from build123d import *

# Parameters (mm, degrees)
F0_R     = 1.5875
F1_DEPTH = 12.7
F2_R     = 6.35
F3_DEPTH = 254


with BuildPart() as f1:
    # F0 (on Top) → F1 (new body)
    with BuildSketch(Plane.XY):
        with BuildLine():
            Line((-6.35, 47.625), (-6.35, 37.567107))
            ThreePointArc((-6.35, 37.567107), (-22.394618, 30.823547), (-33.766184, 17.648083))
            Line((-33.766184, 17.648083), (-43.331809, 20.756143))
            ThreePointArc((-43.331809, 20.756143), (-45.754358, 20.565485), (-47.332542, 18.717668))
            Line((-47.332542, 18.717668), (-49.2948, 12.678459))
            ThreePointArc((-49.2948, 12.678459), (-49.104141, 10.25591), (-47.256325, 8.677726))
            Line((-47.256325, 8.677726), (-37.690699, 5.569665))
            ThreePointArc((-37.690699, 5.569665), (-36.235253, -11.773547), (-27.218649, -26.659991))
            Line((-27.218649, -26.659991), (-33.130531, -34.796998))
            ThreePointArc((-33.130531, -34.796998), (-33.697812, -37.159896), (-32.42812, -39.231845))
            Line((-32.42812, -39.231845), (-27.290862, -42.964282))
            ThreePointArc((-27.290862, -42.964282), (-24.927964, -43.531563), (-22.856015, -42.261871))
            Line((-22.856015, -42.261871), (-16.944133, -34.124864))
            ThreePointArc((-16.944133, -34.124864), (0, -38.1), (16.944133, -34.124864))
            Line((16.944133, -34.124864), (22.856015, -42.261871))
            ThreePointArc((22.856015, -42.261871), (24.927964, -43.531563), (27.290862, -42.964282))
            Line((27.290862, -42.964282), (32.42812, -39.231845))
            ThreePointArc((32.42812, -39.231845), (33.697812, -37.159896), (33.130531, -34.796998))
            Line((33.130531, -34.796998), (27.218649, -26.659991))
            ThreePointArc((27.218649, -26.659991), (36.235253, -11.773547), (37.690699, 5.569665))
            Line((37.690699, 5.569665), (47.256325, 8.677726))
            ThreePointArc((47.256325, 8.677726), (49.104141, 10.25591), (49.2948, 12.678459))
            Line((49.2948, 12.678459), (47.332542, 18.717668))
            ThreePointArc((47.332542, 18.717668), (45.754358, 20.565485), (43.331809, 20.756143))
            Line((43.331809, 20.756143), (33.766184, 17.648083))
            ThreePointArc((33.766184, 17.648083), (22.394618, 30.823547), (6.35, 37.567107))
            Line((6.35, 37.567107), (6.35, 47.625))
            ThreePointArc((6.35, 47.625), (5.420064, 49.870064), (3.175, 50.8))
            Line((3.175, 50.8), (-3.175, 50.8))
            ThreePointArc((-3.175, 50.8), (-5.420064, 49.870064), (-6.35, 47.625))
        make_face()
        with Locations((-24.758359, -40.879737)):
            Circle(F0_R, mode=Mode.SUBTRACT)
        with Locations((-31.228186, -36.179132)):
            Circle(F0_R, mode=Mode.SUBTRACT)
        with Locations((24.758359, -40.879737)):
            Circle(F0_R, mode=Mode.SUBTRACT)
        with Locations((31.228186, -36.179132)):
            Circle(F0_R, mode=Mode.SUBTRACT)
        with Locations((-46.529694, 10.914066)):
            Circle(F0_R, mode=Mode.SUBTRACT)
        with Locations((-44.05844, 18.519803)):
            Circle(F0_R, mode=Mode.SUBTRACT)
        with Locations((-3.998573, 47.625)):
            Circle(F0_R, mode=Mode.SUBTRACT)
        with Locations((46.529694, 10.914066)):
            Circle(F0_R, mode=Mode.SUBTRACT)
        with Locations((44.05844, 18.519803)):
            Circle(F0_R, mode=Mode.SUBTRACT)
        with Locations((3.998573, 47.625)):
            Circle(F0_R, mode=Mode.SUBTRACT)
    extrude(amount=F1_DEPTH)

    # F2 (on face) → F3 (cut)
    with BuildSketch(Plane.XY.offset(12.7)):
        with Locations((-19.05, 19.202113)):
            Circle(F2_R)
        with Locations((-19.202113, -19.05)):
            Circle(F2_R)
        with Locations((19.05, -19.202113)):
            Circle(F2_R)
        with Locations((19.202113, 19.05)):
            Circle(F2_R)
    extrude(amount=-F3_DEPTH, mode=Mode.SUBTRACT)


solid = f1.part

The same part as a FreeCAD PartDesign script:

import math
import FreeCAD as App
import Part
import Sketcher

V = App.Vector
Q = App.Units.Quantity

doc = App.newDocument("Part")
params = doc.addObject("Spreadsheet::Sheet", "Params")
for row, (alias, value) in enumerate([
    ("sketch1_radius", "1.5 in"),
    ("sketch1_diameter", "0.125 in"),
    ("sketch1_radius2", "0.1249999 in"),
    ("sketch1_radius3", "0.125 in"),
    ("sketch1_width", "0.25 in"),
    ("pad1_length", "0.5 in"),
    ("sketch2_diameter", "0.5 in"),
    ("pocket1_length", "10 in"),
], start=1):
    params.set(f"A{row}", alias)
    params.set(f"B{row}", "=" + value)
    params.setAlias(f"B{row}", alias)

body = doc.addObject("PartDesign::Body", "Body")

sketch1 = body.newObject("Sketcher::SketchObject", "Sketch")
sketch1.AttachmentSupport = (doc.getObject("XY_Plane"), [""])
sketch1.MapMode = "FlatFace"
sketch1.addGeometry(Part.LineSegment(V(-6.3, 47.6, 0), V(-6.3, 37.6, 0)), False)
sketch1.addGeometry(Part.ArcOfCircle(Part.Circle(V(0, 0, 0), V(0, 0, 1), 38.1), math.radians(100), math.radians(152)), False)
sketch1.addGeometry(Part.LineSegment(V(-33.8, 17.6, 0), V(-43.3, 20.8, 0)), False)
sketch1.addGeometry(Part.ArcOfCircle(Part.Circle(V(-44.3, 17.7, 0), V(0, 0, 1), 3.2), math.radians(72), math.radians(162)), False)
sketch1.addGeometry(Part.LineSegment(V(-47.3, 18.7, 0), V(-49.3, 12.7, 0)), False)
sketch1.addGeometry(Part.ArcOfCircle(Part.Circle(V(-46.3, 11.7, 0), V(0, 0, 1), 3.2), math.radians(162), math.radians(252)), False)
sketch1.addGeometry(Part.LineSegment(V(-47.3, 8.7, 0), V(-37.7, 5.6, 0)), False)
sketch1.addGeometry(Part.ArcOfCircle(Part.Circle(V(0, 0, 0), V(0, 0, 1), 38.1), math.radians(172), math.radians(224)), False)
sketch1.addGeometry(Part.LineSegment(V(-27.2, -26.7, 0), V(-33.1, -34.8, 0)), False)
sketch1.addGeometry(Part.ArcOfCircle(Part.Circle(V(-30.6, -36.7, 0), V(0, 0, 1), 3.2), math.radians(144), math.radians(234)), False)
sketch1.addGeometry(Part.LineSegment(V(-32.4, -39.2, 0), V(-27.3, -43, 0)), False)
sketch1.addGeometry(Part.ArcOfCircle(Part.Circle(V(-25.4, -40.4, 0), V(0, 0, 1), 3.2), math.radians(-126), math.radians(-36)), False)
sketch1.addGeometry(Part.LineSegment(V(-22.9, -42.3, 0), V(-16.9, -34.1, 0)), False)
sketch1.addGeometry(Part.ArcOfCircle(Part.Circle(V(0, 0, 0), V(0, 0, 1), 38.1), math.radians(-116), math.radians(-64)), False)
sketch1.addGeometry(Part.LineSegment(V(16.9, -34.1, 0), V(22.9, -42.3, 0)), False)
sketch1.addGeometry(Part.ArcOfCircle(Part.Circle(V(25.4, -40.4, 0), V(0, 0, 1), 3.2), math.radians(-144), math.radians(-54)), False)
sketch1.addGeometry(Part.LineSegment(V(27.3, -43, 0), V(32.4, -39.2, 0)), False)
sketch1.addGeometry(Part.ArcOfCircle(Part.Circle(V(30.6, -36.7, 0), V(0, 0, 1), 3.2), math.radians(-54), math.radians(36)), False)
sketch1.addGeometry(Part.LineSegment(V(33.1, -34.8, 0), V(27.2, -26.7, 0)), False)
sketch1.addGeometry(Part.ArcOfCircle(Part.Circle(V(0, 0, 0), V(0, 0, 1), 38.1), math.radians(-44), math.radians(8)), False)
sketch1.addGeometry(Part.LineSegment(V(37.7, 5.6, 0), V(47.3, 8.7, 0)), False)
sketch1.addGeometry(Part.ArcOfCircle(Part.Circle(V(46.3, 11.7, 0), V(0, 0, 1), 3.2), math.radians(-72), math.radians(18)), False)
sketch1.addGeometry(Part.LineSegment(V(49.3, 12.7, 0), V(47.3, 18.7, 0)), False)
sketch1.addGeometry(Part.ArcOfCircle(Part.Circle(V(44.3, 17.7, 0), V(0, 0, 1), 3.2), math.radians(18), math.radians(108)), False)
sketch1.addGeometry(Part.LineSegment(V(43.3, 20.8, 0), V(33.8, 17.6, 0)), False)
sketch1.addGeometry(Part.ArcOfCircle(Part.Circle(V(0, 0, 0), V(0, 0, 1), 38.1), math.radians(28), math.radians(80)), False)
sketch1.addGeometry(Part.LineSegment(V(6.3, 37.6, 0), V(6.3, 47.6, 0)), False)
sketch1.addGeometry(Part.ArcOfCircle(Part.Circle(V(3.2, 47.6, 0), V(0, 0, 1), 3.2), math.radians(0), math.radians(90)), False)
sketch1.addGeometry(Part.LineSegment(V(3.2, 50.8, 0), V(-3.2, 50.8, 0)), False)
sketch1.addGeometry(Part.ArcOfCircle(Part.Circle(V(-3.2, 47.6, 0), V(0, 0, 1), 3.2), math.radians(90), math.radians(180)), False)
sketch1.addGeometry(Part.Circle(V(-24.8, -40.9, 0), V(0, 0, 1), 1.6), False)
sketch1.addGeometry(Part.Circle(V(-31.2, -36.2, 0), V(0, 0, 1), 1.6), False)
sketch1.addGeometry(Part.Circle(V(24.8, -40.9, 0), V(0, 0, 1), 1.6), False)
sketch1.addGeometry(Part.Circle(V(31.2, -36.2, 0), V(0, 0, 1), 1.6), False)
sketch1.addGeometry(Part.Circle(V(-46.5, 10.9, 0), V(0, 0, 1), 1.6), False)
sketch1.addGeometry(Part.Circle(V(-44.1, 18.5, 0), V(0, 0, 1), 1.6), False)
sketch1.addGeometry(Part.Circle(V(-4, 47.6, 0), V(0, 0, 1), 1.6), False)
sketch1.addGeometry(Part.Circle(V(46.5, 10.9, 0), V(0, 0, 1), 1.6), False)
sketch1.addGeometry(Part.Circle(V(44.1, 18.5, 0), V(0, 0, 1), 1.6), False)
sketch1.addGeometry(Part.Circle(V(4, 47.6, 0), V(0, 0, 1), 1.6), False)
sketch1.addConstraint(Sketcher.Constraint("Coincident", 0, 2, 1, 1))
sketch1.addConstraint(Sketcher.Constraint("Coincident", 1, 2, 2, 1))
sketch1.addConstraint(Sketcher.Constraint("Tangent", 2, 2, 3, 1))
sketch1.addConstraint(Sketcher.Constraint("Tangent", 3, 2, 4, 1))
sketch1.addConstraint(Sketcher.Constraint("Tangent", 4, 2, 5, 1))
sketch1.addConstraint(Sketcher.Constraint("Tangent", 5, 2, 6, 1))
sketch1.addConstraint(Sketcher.Constraint("Coincident", 6, 2, 7, 1))
sketch1.addConstraint(Sketcher.Constraint("Coincident", 7, 2, 8, 1))
sketch1.addConstraint(Sketcher.Constraint("Tangent", 8, 2, 9, 1))
sketch1.addConstraint(Sketcher.Constraint("Tangent", 9, 2, 10, 1))
sketch1.addConstraint(Sketcher.Constraint("Tangent", 10, 2, 11, 1))
sketch1.addConstraint(Sketcher.Constraint("Tangent", 11, 2, 12, 1))
sketch1.addConstraint(Sketcher.Constraint("Coincident", 12, 2, 13, 1))
sketch1.addConstraint(Sketcher.Constraint("Coincident", 13, 2, 14, 1))
sketch1.addConstraint(Sketcher.Constraint("Tangent", 14, 2, 15, 1))
sketch1.addConstraint(Sketcher.Constraint("Tangent", 15, 2, 16, 1))
sketch1.addConstraint(Sketcher.Constraint("Tangent", 16, 2, 17, 1))
sketch1.addConstraint(Sketcher.Constraint("Tangent", 17, 2, 18, 1))
sketch1.addConstraint(Sketcher.Constraint("Coincident", 18, 2, 19, 1))
sketch1.addConstraint(Sketcher.Constraint("Coincident", 19, 2, 20, 1))
sketch1.addConstraint(Sketcher.Constraint("Tangent", 20, 2, 21, 1))
sketch1.addConstraint(Sketcher.Constraint("Tangent", 21, 2, 22, 1))
sketch1.addConstraint(Sketcher.Constraint("Tangent", 22, 2, 23, 1))
sketch1.addConstraint(Sketcher.Constraint("Tangent", 23, 2, 24, 1))
sketch1.addConstraint(Sketcher.Constraint("Coincident", 24, 2, 25, 1))
sketch1.addConstraint(Sketcher.Constraint("Coincident", 25, 2, 26, 1))
sketch1.addConstraint(Sketcher.Constraint("Tangent", 26, 2, 27, 1))
sketch1.addConstraint(Sketcher.Constraint("Tangent", 27, 2, 28, 1))
sketch1.addConstraint(Sketcher.Constraint("Tangent", 28, 2, 29, 1))
sketch1.addConstraint(Sketcher.Constraint("Tangent", 29, 2, 0, 1))
sketch1.addConstraint(Sketcher.Constraint("Vertical", 0))
sketch1.addConstraint(Sketcher.Constraint("Vertical", 26))
sketch1.addConstraint(Sketcher.Constraint("Horizontal", 28))
sketch1.addConstraint(Sketcher.Constraint("Coincident", 1, 3, -1, 1))
sketch1.addConstraint(Sketcher.Constraint("Coincident", 7, 3, -1, 1))
sketch1.addConstraint(Sketcher.Constraint("Coincident", 13, 3, -1, 1))
sketch1.addConstraint(Sketcher.Constraint("Coincident", 19, 3, -1, 1))
sketch1.addConstraint(Sketcher.Constraint("Coincident", 25, 3, -1, 1))
sketch1.addConstraint(Sketcher.Constraint("Equal", 5, 9))
sketch1.addConstraint(Sketcher.Constraint("Equal", 9, 11))
sketch1.addConstraint(Sketcher.Constraint("Equal", 7, 13))
sketch1.addConstraint(Sketcher.Constraint("Equal", 11, 15))
sketch1.addConstraint(Sketcher.Constraint("Equal", 15, 17))
sketch1.addConstraint(Sketcher.Constraint("Equal", 13, 19))
sketch1.addConstraint(Sketcher.Constraint("Equal", 17, 21))
sketch1.addConstraint(Sketcher.Constraint("Equal", 3, 23))
sketch1.addConstraint(Sketcher.Constraint("Equal", 1, 25))
sketch1.addConstraint(Sketcher.Constraint("Equal", 21, 27))
sketch1.addConstraint(Sketcher.Constraint("Equal", 27, 29))
sketch1.addConstraint(Sketcher.Constraint("Equal", 30, 31))
sketch1.addConstraint(Sketcher.Constraint("Equal", 31, 32))
sketch1.addConstraint(Sketcher.Constraint("Equal", 32, 33))
sketch1.addConstraint(Sketcher.Constraint("Equal", 33, 34))
sketch1.addConstraint(Sketcher.Constraint("Equal", 34, 35))
sketch1.addConstraint(Sketcher.Constraint("Equal", 35, 36))
sketch1.addConstraint(Sketcher.Constraint("Equal", 36, 37))
sketch1.addConstraint(Sketcher.Constraint("Equal", 37, 38))
sketch1.addConstraint(Sketcher.Constraint("Equal", 38, 39))
sketch1.addConstraint(Sketcher.Constraint("Symmetric", 11, 3, 15, 3, -2))
sketch1.addConstraint(Sketcher.Constraint("Symmetric", 9, 3, 17, 3, -2))
sketch1.addConstraint(Sketcher.Constraint("Symmetric", 5, 3, 21, 3, -2))
sketch1.addConstraint(Sketcher.Constraint("Symmetric", 3, 3, 23, 3, -2))
sketch1.addConstraint(Sketcher.Constraint("Symmetric", 30, 3, 32, 3, -2))
sketch1.addConstraint(Sketcher.Constraint("Symmetric", 31, 3, 33, 3, -2))
sketch1.addConstraint(Sketcher.Constraint("Symmetric", 34, 3, 37, 3, -2))
sketch1.addConstraint(Sketcher.Constraint("Symmetric", 35, 3, 38, 3, -2))
sketch1.addConstraint(Sketcher.Constraint("Symmetric", 36, 3, 39, 3, -2))
sketch1.addConstraint(Sketcher.Constraint("Perpendicular", 2, 4))
sketch1.addConstraint(Sketcher.Constraint("Perpendicular", 4, 6))
sketch1.addConstraint(Sketcher.Constraint("Perpendicular", 8, 10))
sketch1.addConstraint(Sketcher.Constraint("Perpendicular", 10, 12))
sketch1.addConstraint(Sketcher.Constraint("Perpendicular", 14, 16))
sketch1.addConstraint(Sketcher.Constraint("Perpendicular", 16, 18))
sketch1.addConstraint(Sketcher.Constraint("Perpendicular", 20, 22))
sketch1.addConstraint(Sketcher.Constraint("Perpendicular", 22, 24))
sketch1.addConstraint(Sketcher.Constraint("Horizontal", 29, 3, 36, 3))
sketch1.addConstraint(Sketcher.Constraint("Horizontal", 0, 2, 25, 2))
sketch1.addConstraint(Sketcher.Constraint("Equal", 2, 6))
sketch1.addConstraint(Sketcher.Constraint("Equal", 6, 8))
sketch1.addConstraint(Sketcher.Constraint("Equal", 4, 10))
sketch1.addConstraint(Sketcher.Constraint("Equal", 8, 12))
sketch1.addConstraint(Sketcher.Constraint("Radius", 7, Q("1.5 in")))
sketch1.addConstraint(Sketcher.Constraint("Diameter", 30, Q("0.125 in")))
sketch1.addConstraint(Sketcher.Constraint("DistanceY", -1, 1, 27, 2, Q("2 in")))
sketch1.addConstraint(Sketcher.Constraint("Angle", 2, Q("162 deg")))
sketch1.addConstraint(Sketcher.Constraint("Angle", 8, Q("-126.000002 deg")))
sketch1.addConstraint(Sketcher.Constraint("Radius", 3, Q("0.1249999 in")))
sketch1.addConstraint(Sketcher.Constraint("Radius", 5, Q("0.125 in")))
sketch1.addConstraint(Sketcher.Constraint("DistanceX", 28, 2, 28, 1, Q("0.25 in")))
sketch1.addConstraint(Sketcher.Constraint("Distance", 4, Q("0.25 in")))
sketch1.addConstraint(Sketcher.Constraint("Radius", 1, 38.100007))
sketch1.addConstraint(Sketcher.Constraint("DistanceX", 9, 3, -1, 1, 30.561901))
sketch1.addConstraint(Sketcher.Constraint("DistanceX", 34, 3, 5, 3, 0.254498))
sketch1.addConstraint(Sketcher.Constraint("DistanceX", 3, 3, 35, 3, 0.254499))
sketch1.addConstraint(Sketcher.Constraint("DistanceY", 34, 3, 3, 2, 7.803602))
sketch1.addConstraint(Sketcher.Constraint("DistanceX", 30, 3, -1, 1, 24.758359))
sketch1.addConstraint(Sketcher.Constraint("DistanceY", 30, 3, 9, 3, 4.216521))
sketch1.addConstraint(Sketcher.Constraint("DistanceX", 31, 3, 11, 3, 5.803542))
sketch1.addConstraint(Sketcher.Constraint("DistanceY", 11, 3, 31, 3, 4.21652))
sketch1.addConstraint(Sketcher.Constraint("DistanceY", 3, 3, 35, 3, 0.783262))
sketch1.addConstraint(Sketcher.Constraint("DistanceX", 36, 3, -1, 1, 3.998573))
sketch1.setExpression("Constraints[81]", "Params.sketch1_radius")
sketch1.setExpression("Constraints[82]", "Params.sketch1_diameter")
sketch1.setExpression("Constraints[86]", "Params.sketch1_radius2")
sketch1.setExpression("Constraints[87]", "Params.sketch1_radius3")
sketch1.setExpression("Constraints[88]", "Params.sketch1_width")
pad1 = body.newObject("PartDesign::Pad", "Pad")
pad1.Profile = sketch1
pad1.setExpression("Length", "Params.pad1_length")

sketch2 = body.newObject("Sketcher::SketchObject", "Sketch001")
sketch2.AttachmentSupport = (doc.getObject("XY_Plane"), [""])
sketch2.MapMode = "FlatFace"
sketch2.AttachmentOffset = App.Placement(V(0, 0, 0.5 * 25.4), App.Rotation())
sketch2.addGeometry(Part.Circle(V(-19, 19, 0), V(0, 0, 1), 6), False)
sketch2.addGeometry(Part.Circle(V(-19, -19, 0), V(0, 0, 1), 6), False)
sketch2.addGeometry(Part.Circle(V(19, -19, 0), V(0, 0, 1), 6), False)
sketch2.addGeometry(Part.Circle(V(19, 19, 0), V(0, 0, 1), 6), False)
sketch2.addConstraint(Sketcher.Constraint("Equal", 0, 1))
sketch2.addConstraint(Sketcher.Constraint("Equal", 1, 2))
sketch2.addConstraint(Sketcher.Constraint("Equal", 2, 3))
sketch2.addConstraint(Sketcher.Constraint("Symmetric", 0, 3, 2, 3, -1, 1))
sketch2.addConstraint(Sketcher.Constraint("Symmetric", 1, 3, 3, 3, -1, 1))
sketch2.addConstraint(Sketcher.Constraint("Diameter", 0, Q("0.5 in")))
sketch2.addConstraint(Sketcher.Constraint("DistanceX", 0, 3, 2, 3, Q("1.5 in")))
sketch2.addConstraint(Sketcher.Constraint("DistanceY", 1, 3, 3, 3, Q("1.5 in")))
sketch2.addConstraint(Sketcher.Constraint("DistanceY", -1, 1, 0, 3, 19.202113))
sketch2.addConstraint(Sketcher.Constraint("DistanceX", 1, 3, -1, 1, 19.202113))
sketch2.setExpression("Constraints[5]", "Params.sketch2_diameter")
pocket1 = body.newObject("PartDesign::Pocket", "Pocket")
pocket1.Profile = sketch2
pocket1.setExpression("Length", "Params.pocket1_length")

doc.recompute()
